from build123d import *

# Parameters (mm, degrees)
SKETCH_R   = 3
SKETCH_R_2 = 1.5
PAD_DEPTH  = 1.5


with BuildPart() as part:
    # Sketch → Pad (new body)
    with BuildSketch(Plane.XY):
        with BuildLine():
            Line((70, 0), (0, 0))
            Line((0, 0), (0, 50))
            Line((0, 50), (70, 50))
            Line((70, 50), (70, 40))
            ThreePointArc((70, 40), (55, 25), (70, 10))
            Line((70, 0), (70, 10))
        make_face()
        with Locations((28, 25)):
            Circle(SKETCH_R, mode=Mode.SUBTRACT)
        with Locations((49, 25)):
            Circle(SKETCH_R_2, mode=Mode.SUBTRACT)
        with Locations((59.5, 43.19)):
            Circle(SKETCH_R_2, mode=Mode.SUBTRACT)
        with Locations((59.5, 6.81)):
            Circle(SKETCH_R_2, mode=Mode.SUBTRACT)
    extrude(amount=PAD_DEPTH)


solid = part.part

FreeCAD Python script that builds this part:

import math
import FreeCAD as App
import Part
import Sketcher

V = App.Vector

doc = App.newDocument("Part")
params = doc.addObject("Spreadsheet::Sheet", "Params")
for row, (alias, value) in enumerate([
    ("sketch1_diameter", "3 mm"),
    ("sketch1_diameter2", "6 mm"),
    ("sketch1_radius", "15 mm"),
    ("sketch1_width", "70 mm"),
    ("sketch1_height", "10 mm"),
    ("pad1_length", "1.5 mm"),
], start=1):
    params.set(f"A{row}", alias)
    params.set(f"B{row}", "=" + value)
    params.setAlias(f"B{row}", alias)

body = doc.addObject("PartDesign::Body", "Body")

sketch1 = doc.addObject("Sketcher::SketchObject", "Sketch")
body.addObject(sketch1)
sketch1.AttachmentSupport = (doc.XY_Plane, [""])
sketch1.MapMode = "FlatFace"
sketch1.addGeometry(Part.LineSegment(V(0, 0, 0), V(70, 0, 0)), False)
sketch1.addGeometry(Part.LineSegment(V(70, 0, 0), V(70, 10, 0)), False)
sketch1.addGeometry(Part.ArcOfCircle(Part.Circle(V(70, 25, 0), V(0, 0, 1), 15), math.radians(90), math.radians(270)), False)
sketch1.addGeometry(Part.LineSegment(V(70, 40, 0), V(70, 50, 0)), False)
sketch1.addGeometry(Part.LineSegment(V(70, 50, 0), V(0, 50, 0)), False)
sketch1.addGeometry(Part.LineSegment(V(0, 50, 0), V(0, 0, 0)), False)
sketch1.addGeometry(Part.Circle(V(59.5, 6.8, 0), V(0, 0, 1), 1.5), False)
sketch1.addGeometry(Part.Circle(V(49, 25, 0), V(0, 0, 1), 1.5), False)
sketch1.addGeometry(Part.Circle(V(59.5, 43.2, 0), V(0, 0, 1), 1.5), False)
sketch1.addGeometry(Part.Circle(V(28, 25, 0), V(0, 0, 1), 3), False)
sketch1.addConstraint(Sketcher.Constraint("Coincident", 0, 2, 1, 1))
sketch1.addConstraint(Sketcher.Constraint("Coincident", 1, 2, 2, 2))
sketch1.addConstraint(Sketcher.Constraint("Coincident", 2, 1, 3, 1))
sketch1.addConstraint(Sketcher.Constraint("Coincident", 3, 2, 4, 1))
sketch1.addConstraint(Sketcher.Constraint("Coincident", 4, 2, 5, 1))
sketch1.addConstraint(Sketcher.Constraint("Coincident", 5, 2, 0, 1))
sketch1.addConstraint(Sketcher.Constraint("Horizontal", 0))
sketch1.addConstraint(Sketcher.Constraint("Vertical", 1))
sketch1.addConstraint(Sketcher.Constraint("Vertical", 3))
sketch1.addConstraint(Sketcher.Constraint("Horizontal", 4))
sketch1.addConstraint(Sketcher.Constraint("Vertical", 5))
sketch1.addConstraint(Sketcher.Constraint("Coincident", 5, 2, -1, 1))
sketch1.addConstraint(Sketcher.Constraint("Equal", 6, 7))
sketch1.addConstraint(Sketcher.Constraint("Equal", 7, 8))
sketch1.addConstraint(Sketcher.Constraint("Horizontal", 2, 3, 7, 3))
sketch1.addConstraint(Sketcher.Constraint("Horizontal", 7, 3, 9, 3))
sketch1.addConstraint(Sketcher.Constraint("Vertical", 6, 3, 8, 3))
sketch1.addConstraint(Sketcher.Constraint("Vertical", 2, 3, 0, 2))
sketch1.addConstraint(Sketcher.Constraint("Vertical", 1, 2, 2, 1))
sketch1.addConstraint(Sketcher.Constraint("Equal", 1, 3))
sketch1.addConstraint(Sketcher.Constraint("Diameter", 6, 3.0))
sketch1.addConstraint(Sketcher.Constraint("Diameter", 9, 6.0))
sketch1.addConstraint(Sketcher.Constraint("Radius", 2, 15.0))
sketch1.addConstraint(Sketcher.Constraint("DistanceX", 0, 1, 0, 2, 70.0))
sketch1.addConstraint(Sketcher.Constraint("DistanceY", 1, 1, 1, 2, 10.0))
sketch1.addConstraint(Sketcher.Constraint("DistanceX", -1, 1, 7, 3, 49.0))
sketch1.addConstraint(Sketcher.Constraint("DistanceX", -1, 1, 9, 3, 28.0))
sketch1.addConstraint(Sketcher.Constraint("DistanceX", -1, 1, 6, 3, 59.5))
sketch1.addConstraint(Sketcher.Constraint("DistanceY", -1, 1, 6, 3, 6.81))
sketch1.addConstraint(Sketcher.Constraint("DistanceY", -1, 1, 8, 3, 43.19))
sketch1.setExpression("Constraints[20]", "Params.sketch1_diameter")
sketch1.setExpression("Constraints[21]", "Params.sketch1_diameter2")
sketch1.setExpression("Constraints[22]", "Params.sketch1_radius")
sketch1.setExpression("Constraints[23]", "Params.sketch1_width")
sketch1.setExpression("Constraints[24]", "Params.sketch1_height")
pad1 = doc.addObject("PartDesign::Pad", "Pad")
body.addObject(pad1)
pad1.Profile = sketch1
pad1.setExpression("Length", "Params.pad1_length")

doc.recompute()
